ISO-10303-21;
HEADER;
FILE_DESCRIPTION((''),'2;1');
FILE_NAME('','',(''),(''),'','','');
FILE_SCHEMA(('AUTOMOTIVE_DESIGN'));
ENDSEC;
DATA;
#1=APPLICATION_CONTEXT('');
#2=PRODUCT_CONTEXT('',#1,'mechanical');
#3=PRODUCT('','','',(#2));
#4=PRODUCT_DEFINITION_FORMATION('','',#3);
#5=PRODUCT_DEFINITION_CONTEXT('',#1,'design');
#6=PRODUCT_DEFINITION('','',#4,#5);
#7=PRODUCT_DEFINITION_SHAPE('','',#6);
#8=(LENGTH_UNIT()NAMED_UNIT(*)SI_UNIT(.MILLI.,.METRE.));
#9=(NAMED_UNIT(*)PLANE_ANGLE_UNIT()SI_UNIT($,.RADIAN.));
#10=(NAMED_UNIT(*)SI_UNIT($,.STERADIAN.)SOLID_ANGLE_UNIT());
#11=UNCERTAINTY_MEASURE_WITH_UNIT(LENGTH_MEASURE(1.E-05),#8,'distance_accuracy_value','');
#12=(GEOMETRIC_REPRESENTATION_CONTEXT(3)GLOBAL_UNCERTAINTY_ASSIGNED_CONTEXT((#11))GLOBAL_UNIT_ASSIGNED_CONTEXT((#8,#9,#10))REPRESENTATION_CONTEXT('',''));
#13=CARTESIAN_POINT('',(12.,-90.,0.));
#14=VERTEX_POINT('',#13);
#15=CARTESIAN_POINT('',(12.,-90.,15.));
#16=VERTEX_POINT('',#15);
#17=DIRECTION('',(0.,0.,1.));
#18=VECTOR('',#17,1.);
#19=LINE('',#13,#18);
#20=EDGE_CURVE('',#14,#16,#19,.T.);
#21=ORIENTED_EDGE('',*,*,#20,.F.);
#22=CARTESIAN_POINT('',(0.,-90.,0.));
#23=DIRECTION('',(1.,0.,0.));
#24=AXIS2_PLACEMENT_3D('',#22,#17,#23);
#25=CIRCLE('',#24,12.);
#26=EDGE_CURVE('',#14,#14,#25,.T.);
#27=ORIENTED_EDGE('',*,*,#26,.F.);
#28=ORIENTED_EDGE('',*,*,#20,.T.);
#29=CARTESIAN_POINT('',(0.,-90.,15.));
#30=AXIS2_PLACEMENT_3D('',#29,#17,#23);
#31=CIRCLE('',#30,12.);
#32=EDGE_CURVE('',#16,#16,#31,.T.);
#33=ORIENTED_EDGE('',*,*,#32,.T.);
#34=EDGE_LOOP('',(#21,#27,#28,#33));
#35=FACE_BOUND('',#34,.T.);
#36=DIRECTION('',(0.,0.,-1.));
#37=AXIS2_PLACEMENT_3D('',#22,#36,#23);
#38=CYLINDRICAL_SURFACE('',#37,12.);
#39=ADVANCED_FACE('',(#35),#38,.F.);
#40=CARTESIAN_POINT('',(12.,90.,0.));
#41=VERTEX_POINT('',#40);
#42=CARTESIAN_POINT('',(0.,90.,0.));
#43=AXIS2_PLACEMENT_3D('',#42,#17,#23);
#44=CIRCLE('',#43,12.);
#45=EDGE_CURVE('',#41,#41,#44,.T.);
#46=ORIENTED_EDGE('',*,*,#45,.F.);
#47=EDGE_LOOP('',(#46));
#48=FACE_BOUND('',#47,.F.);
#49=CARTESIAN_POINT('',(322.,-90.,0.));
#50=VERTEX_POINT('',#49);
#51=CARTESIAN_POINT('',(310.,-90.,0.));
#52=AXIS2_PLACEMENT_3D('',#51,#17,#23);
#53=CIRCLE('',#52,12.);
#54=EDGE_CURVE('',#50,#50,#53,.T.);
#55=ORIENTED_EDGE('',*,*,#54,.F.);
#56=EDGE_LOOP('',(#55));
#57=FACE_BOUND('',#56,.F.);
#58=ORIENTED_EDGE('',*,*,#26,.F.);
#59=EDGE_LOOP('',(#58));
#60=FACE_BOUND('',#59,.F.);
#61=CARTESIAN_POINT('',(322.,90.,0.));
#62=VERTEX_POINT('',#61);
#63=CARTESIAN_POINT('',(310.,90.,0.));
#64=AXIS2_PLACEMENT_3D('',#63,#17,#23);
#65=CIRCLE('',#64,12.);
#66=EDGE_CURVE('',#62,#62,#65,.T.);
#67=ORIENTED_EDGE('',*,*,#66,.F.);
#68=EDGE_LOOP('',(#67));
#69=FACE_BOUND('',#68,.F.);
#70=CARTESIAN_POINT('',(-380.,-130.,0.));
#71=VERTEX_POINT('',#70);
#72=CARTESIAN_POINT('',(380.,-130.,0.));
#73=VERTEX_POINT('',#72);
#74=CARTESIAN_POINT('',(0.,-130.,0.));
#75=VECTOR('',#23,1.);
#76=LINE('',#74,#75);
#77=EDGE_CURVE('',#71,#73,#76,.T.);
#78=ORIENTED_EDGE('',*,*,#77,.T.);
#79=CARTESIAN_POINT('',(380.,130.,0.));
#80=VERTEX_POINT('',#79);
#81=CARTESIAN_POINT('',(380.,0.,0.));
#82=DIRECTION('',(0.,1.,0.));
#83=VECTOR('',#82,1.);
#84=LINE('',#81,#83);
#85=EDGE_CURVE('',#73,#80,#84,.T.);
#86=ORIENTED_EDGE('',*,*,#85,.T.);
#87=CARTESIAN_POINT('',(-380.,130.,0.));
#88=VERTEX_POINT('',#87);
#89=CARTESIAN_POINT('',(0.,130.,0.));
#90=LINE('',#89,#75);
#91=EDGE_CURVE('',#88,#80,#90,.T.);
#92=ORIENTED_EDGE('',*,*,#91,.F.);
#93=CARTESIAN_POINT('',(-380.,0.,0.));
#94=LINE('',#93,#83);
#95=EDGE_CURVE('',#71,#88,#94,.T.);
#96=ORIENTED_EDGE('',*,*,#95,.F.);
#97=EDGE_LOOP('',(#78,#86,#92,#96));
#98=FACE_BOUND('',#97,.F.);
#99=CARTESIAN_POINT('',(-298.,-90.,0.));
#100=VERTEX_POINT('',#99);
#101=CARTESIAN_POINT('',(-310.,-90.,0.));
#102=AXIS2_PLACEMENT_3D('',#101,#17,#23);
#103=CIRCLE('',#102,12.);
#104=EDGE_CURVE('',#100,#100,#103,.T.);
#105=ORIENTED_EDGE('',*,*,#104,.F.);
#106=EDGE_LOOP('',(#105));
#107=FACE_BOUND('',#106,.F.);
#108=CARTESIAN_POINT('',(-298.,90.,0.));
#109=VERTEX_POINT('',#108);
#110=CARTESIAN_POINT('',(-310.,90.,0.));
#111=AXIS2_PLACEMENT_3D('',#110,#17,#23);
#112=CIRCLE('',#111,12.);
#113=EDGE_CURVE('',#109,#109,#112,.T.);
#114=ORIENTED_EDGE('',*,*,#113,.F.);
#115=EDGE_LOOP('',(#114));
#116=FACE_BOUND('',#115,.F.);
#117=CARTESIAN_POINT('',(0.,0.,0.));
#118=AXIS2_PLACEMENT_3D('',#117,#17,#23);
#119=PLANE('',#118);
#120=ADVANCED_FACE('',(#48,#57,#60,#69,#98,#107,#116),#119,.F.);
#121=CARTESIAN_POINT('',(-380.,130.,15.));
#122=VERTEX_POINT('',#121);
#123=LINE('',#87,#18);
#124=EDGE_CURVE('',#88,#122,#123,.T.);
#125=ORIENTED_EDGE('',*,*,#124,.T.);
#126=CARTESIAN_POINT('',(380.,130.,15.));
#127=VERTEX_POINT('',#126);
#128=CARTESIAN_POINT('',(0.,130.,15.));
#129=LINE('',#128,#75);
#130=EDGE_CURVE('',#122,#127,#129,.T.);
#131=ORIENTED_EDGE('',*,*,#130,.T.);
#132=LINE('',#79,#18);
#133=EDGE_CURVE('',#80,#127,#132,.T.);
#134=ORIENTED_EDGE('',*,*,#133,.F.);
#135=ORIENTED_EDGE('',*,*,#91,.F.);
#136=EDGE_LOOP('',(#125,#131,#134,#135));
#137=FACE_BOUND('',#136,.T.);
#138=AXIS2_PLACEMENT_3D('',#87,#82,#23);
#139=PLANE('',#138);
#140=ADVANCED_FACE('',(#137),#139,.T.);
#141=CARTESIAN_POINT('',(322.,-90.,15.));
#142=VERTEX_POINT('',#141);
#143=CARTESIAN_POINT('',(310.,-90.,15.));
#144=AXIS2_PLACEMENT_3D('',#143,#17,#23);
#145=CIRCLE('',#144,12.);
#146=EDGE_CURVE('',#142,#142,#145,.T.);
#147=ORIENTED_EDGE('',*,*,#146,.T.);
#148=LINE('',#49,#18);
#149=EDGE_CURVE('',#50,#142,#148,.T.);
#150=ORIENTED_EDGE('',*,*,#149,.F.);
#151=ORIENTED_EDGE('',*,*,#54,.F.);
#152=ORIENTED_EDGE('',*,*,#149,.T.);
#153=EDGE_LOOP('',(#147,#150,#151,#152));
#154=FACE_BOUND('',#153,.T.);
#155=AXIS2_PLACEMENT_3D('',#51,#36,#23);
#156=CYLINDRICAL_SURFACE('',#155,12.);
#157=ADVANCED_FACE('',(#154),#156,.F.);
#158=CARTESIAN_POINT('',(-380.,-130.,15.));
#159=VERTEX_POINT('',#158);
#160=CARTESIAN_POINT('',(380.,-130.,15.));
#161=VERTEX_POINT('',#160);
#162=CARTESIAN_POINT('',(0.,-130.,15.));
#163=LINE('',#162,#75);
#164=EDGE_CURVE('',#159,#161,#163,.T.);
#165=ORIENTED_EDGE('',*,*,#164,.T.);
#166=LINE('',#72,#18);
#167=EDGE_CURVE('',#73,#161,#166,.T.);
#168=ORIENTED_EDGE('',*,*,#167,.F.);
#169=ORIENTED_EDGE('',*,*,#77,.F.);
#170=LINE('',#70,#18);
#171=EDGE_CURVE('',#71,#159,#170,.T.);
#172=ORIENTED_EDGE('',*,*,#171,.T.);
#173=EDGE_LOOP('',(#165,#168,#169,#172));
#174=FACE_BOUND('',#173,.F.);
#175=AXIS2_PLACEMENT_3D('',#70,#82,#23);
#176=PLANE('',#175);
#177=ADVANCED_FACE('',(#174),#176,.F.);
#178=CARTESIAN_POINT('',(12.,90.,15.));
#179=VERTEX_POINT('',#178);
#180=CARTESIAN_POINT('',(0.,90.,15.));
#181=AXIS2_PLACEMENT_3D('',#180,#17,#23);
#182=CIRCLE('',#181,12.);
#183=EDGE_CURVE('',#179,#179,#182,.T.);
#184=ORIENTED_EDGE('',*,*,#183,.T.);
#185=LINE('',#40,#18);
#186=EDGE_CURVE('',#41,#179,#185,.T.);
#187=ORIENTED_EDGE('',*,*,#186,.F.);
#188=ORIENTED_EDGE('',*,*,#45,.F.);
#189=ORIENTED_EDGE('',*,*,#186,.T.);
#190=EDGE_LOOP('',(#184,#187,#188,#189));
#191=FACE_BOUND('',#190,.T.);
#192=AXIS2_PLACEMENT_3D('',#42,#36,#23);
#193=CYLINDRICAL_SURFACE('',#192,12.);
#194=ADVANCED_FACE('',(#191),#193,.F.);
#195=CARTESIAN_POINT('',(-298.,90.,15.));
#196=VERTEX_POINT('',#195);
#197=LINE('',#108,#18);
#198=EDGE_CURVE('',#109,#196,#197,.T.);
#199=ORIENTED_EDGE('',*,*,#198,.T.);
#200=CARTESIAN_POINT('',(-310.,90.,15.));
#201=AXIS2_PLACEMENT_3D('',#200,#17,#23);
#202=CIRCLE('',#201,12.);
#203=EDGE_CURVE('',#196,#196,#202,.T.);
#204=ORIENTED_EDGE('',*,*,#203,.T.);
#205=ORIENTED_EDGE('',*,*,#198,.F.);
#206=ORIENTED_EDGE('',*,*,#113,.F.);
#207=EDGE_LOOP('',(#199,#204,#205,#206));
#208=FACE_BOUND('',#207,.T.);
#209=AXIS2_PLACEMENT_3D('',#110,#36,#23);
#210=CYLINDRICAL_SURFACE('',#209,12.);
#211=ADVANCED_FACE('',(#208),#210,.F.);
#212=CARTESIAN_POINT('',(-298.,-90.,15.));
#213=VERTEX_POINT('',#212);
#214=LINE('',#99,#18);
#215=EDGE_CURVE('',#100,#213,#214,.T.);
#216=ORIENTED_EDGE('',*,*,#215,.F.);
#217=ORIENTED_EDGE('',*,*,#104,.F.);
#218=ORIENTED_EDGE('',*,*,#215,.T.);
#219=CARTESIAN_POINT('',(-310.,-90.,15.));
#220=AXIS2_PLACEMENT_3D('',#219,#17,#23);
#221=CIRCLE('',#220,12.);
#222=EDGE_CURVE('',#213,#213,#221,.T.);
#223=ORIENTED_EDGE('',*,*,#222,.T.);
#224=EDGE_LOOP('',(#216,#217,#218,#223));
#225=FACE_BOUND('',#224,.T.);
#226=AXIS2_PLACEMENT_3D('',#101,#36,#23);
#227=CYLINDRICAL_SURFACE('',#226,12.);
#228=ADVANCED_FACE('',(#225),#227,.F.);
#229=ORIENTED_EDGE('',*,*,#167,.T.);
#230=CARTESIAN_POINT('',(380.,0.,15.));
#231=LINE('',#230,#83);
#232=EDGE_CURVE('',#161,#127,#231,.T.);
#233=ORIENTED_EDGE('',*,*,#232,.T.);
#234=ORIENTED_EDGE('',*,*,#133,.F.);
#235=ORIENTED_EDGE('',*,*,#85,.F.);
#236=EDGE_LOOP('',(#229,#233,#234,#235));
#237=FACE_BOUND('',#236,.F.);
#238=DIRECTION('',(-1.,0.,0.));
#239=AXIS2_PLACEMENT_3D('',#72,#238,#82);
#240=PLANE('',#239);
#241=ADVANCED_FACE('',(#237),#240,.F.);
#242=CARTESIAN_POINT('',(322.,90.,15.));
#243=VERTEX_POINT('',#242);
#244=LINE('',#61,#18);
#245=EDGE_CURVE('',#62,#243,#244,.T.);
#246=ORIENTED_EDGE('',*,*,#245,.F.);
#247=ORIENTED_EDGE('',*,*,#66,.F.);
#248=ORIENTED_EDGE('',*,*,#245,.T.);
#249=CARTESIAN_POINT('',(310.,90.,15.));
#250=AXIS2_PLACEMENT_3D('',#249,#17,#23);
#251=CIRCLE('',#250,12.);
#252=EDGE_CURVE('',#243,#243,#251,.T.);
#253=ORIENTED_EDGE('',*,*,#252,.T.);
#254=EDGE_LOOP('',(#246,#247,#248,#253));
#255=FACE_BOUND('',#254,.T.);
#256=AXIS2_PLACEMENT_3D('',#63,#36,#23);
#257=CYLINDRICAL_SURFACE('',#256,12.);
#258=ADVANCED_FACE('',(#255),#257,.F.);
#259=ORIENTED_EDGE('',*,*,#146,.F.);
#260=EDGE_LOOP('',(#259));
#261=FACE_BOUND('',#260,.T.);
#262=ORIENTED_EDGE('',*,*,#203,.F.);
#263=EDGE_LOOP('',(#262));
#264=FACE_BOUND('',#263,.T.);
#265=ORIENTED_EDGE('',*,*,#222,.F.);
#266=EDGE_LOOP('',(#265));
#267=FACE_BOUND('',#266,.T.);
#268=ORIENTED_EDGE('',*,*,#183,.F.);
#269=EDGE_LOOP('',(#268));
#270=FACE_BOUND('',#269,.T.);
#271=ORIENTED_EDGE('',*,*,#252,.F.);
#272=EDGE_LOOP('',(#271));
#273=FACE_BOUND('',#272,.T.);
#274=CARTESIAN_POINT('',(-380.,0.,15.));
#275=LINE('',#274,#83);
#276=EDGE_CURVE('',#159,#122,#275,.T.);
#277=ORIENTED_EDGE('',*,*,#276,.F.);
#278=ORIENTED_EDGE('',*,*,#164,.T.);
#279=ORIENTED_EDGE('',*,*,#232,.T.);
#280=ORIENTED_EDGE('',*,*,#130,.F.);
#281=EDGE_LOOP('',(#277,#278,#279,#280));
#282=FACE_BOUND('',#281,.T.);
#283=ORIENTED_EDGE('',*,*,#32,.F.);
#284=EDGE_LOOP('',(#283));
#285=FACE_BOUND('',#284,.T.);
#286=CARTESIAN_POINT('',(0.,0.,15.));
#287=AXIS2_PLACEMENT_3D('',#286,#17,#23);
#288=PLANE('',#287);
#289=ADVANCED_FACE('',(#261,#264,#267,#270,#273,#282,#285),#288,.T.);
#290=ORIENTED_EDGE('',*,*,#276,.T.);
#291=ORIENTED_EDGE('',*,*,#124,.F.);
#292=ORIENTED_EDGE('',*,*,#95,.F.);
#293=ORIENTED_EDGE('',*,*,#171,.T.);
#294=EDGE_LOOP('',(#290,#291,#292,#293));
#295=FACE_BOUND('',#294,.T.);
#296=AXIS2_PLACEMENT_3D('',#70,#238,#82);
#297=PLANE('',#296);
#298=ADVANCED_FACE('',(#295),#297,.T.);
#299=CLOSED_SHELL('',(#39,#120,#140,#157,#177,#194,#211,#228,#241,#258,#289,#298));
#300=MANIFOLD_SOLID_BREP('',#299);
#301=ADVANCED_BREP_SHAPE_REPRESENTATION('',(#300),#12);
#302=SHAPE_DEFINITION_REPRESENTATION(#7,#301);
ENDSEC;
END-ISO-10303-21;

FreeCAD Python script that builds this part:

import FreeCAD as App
import Part
import Sketcher
from FreeCAD import Vector

doc = App.newDocument("Part")
body = doc.addObject("PartDesign::Body", "Body")

# Sketch on XY plane
sketch1 = body.newObject("Sketcher::SketchObject", "Sketch")
sketch1.AttachmentSupport = (doc.getObject("XY_Plane"), [""])
sketch1.MapMode = "FlatFace"
sketch1.addGeometry([
    Part.LineSegment(Vector(-380, 130, 0), Vector(-380, -130, 0)),  # 0
    Part.LineSegment(Vector(-380, -130, 0), Vector(380, -130, 0)),  # 1
    Part.LineSegment(Vector(380, -130, 0), Vector(380, 130, 0)),  # 2
    Part.LineSegment(Vector(380, 130, 0), Vector(-380, 130, 0)),  # 3
    Part.Circle(Vector(-310, -90, 0), Vector(0, 0, 1), 12),  # 4
    Part.Circle(Vector(0, -90, 0), Vector(0, 0, 1), 12),  # 5
    Part.Circle(Vector(310, -90, 0), Vector(0, 0, 1), 12),  # 6
    Part.Circle(Vector(-310, 90, 0), Vector(0, 0, 1), 12),  # 7
    Part.Circle(Vector(0, 90, 0), Vector(0, 0, 1), 12),  # 8
    Part.Circle(Vector(310, 90, 0), Vector(0, 0, 1), 12),  # 9
], False)
sketch1.addConstraint([
    Sketcher.Constraint("Coincident", 0, 2, 1, 1),
    Sketcher.Constraint("Coincident", 1, 2, 2, 1),
    Sketcher.Constraint("Coincident", 2, 2, 3, 1),
    Sketcher.Constraint("Coincident", 3, 2, 0, 1),
    Sketcher.Constraint("Vertical", 0),
    Sketcher.Constraint("Horizontal", 1),
    Sketcher.Constraint("Vertical", 2),
    Sketcher.Constraint("Horizontal", 3),
    Sketcher.Constraint("Equal", 4, 5),
    Sketcher.Constraint("Equal", 5, 6),
    Sketcher.Constraint("Equal", 6, 7),
    Sketcher.Constraint("Equal", 7, 8),
    Sketcher.Constraint("Equal", 8, 9),
    Sketcher.Constraint("Symmetric", 6, 3, 7, 3, -1, 1),
    Sketcher.Constraint("Symmetric", 5, 3, 8, 3, -1, 1),
    Sketcher.Constraint("Symmetric", 4, 3, 9, 3, -1, 1),
    Sketcher.Constraint("Symmetric", 0, 2, 2, 2, -1, 1),
    Sketcher.Constraint("Symmetric", 4, 3, 6, 3, -2),
    Sketcher.Constraint("PointOnObject", 5, 3, -2),
    Sketcher.Constraint("Horizontal", 4, 3, 5, 3),
    Sketcher.Constraint("Diameter", 4, 24.0),
    Sketcher.Constraint("DistanceX", 1, 1, 1, 2, 760.0),
    Sketcher.Constraint("DistanceY", 0, 2, 0, 1, 260.0),
    Sketcher.Constraint("DistanceX", 4, 3, -1, 1, 310.0),
    Sketcher.Constraint("DistanceY", 4, 3, -1, 1, 90.0),
])
pad1 = body.newObject("PartDesign::Pad", "Pad")
pad1.Profile = sketch1
pad1.Length = 15

doc.recompute()
